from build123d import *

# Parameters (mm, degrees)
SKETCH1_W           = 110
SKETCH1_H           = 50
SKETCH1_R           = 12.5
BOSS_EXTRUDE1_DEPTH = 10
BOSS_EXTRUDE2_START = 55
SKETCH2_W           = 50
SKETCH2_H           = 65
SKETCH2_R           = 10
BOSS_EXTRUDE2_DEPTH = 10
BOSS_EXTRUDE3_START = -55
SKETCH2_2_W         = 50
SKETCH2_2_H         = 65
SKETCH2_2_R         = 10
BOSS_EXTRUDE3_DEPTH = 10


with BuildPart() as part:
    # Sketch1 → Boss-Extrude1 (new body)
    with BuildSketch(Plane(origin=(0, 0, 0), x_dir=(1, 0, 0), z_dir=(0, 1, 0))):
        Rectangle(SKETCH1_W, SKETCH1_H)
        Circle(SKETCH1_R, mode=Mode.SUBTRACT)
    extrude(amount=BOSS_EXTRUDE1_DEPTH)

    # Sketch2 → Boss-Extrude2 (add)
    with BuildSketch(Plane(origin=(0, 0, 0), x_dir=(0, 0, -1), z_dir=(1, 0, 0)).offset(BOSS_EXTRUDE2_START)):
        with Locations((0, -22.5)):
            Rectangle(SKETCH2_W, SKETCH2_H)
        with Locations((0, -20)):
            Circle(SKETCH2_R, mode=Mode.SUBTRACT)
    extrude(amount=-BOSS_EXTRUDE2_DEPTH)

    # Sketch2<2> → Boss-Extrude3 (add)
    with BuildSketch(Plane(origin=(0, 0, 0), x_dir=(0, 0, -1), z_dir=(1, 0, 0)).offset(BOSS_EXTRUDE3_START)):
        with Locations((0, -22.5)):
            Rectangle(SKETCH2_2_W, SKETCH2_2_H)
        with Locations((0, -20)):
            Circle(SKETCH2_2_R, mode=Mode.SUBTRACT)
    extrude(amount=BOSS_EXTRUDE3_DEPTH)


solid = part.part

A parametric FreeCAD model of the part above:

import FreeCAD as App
import Part
import Sketcher
Q = App.Units.Quantity

doc = App.newDocument("Part")
body = doc.addObject("PartDesign::Body", "Body")

# Sketch on XZ plane
sketch1 = doc.addObject("Sketcher::SketchObject", "Sketch")
body.addObject(sketch1)
sketch1.AttachmentSupport = (doc.XZ_Plane, [""])
sketch1.MapMode = "FlatFace"
sketch1.addGeometry([
    Part.LineSegment(App.Vector(-55, -25, 0), App.Vector(-55, 25, 0)),  # 0
    Part.LineSegment(App.Vector(-55, 25, 0), App.Vector(55, 25, 0)),  # 1
    Part.LineSegment(App.Vector(55, 25, 0), App.Vector(55, -25, 0)),  # 2
    Part.LineSegment(App.Vector(55, -25, 0), App.Vector(-55, -25, 0)),  # 3
    Part.Circle(App.Vector(0, 0, 0), App.Vector(0, 0, 1), 12),  # 4
], False)
sketch1.addConstraint([
    Sketcher.Constraint("Coincident", 0, 2, 1, 1),
    Sketcher.Constraint("Coincident", 1, 2, 2, 1),
    Sketcher.Constraint("Coincident", 2, 2, 3, 1),
    Sketcher.Constraint("Coincident", 3, 2, 0, 1),
    Sketcher.Constraint("Vertical", 0),
    Sketcher.Constraint("Horizontal", 1),
    Sketcher.Constraint("Vertical", 2),
    Sketcher.Constraint("Horizontal", 3),
    Sketcher.Constraint("Coincident", 4, 3, -1, 1),
    Sketcher.Constraint("Symmetric", 0, 2, 2, 2, -1, 1),
    Sketcher.Constraint("Diameter", 4, Q("25 mm")),
    Sketcher.Constraint("DistanceX", 1, 1, 1, 2, Q("110 mm")),
    Sketcher.Constraint("DistanceY", 0, 1, 0, 2, Q("50 mm")),
])
pad1 = doc.addObject("PartDesign::Pad", "Pad")
body.addObject(pad1)
pad1.Profile = sketch1
pad1.Length = 10
pad1.Reversed = True

# Sketch on YZ plane
sketch2 = doc.addObject("Sketcher::SketchObject", "Sketch001")
body.addObject(sketch2)
sketch2.AttachmentSupport = (doc.YZ_Plane, [""])
sketch2.MapMode = "FlatFace"
sketch2.AttachmentOffset = App.Placement(App.Vector(0, 0, 55), App.Rotation())
sketch2.addGeometry([
    Part.LineSegment(App.Vector(10, 25, 0), App.Vector(-55, 25, 0)),  # 0
    Part.LineSegment(App.Vector(-55, 25, 0), App.Vector(-55, -25, 0)),  # 1
    Part.LineSegment(App.Vector(-55, -25, 0), App.Vector(10, -25, 0)),  # 2
    Part.LineSegment(App.Vector(10, -25, 0), App.Vector(10, 25, 0)),  # 3
    Part.Circle(App.Vector(-20, 0, 0), App.Vector(0, 0, 1), 10),  # 4
], False)
sketch2.addConstraint([
    Sketcher.Constraint("Coincident", 0, 2, 1, 1),
    Sketcher.Constraint("Coincident", 1, 2, 2, 1),
    Sketcher.Constraint("Coincident", 2, 2, 3, 1),
    Sketcher.Constraint("Coincident", 3, 2, 0, 1),
    Sketcher.Constraint("Horizontal", 0),
    Sketcher.Constraint("Vertical", 1),
    Sketcher.Constraint("Horizontal", 2),
    Sketcher.Constraint("Vertical", 3),
    Sketcher.Constraint("PointOnObject", 4, 3, -1),
    Sketcher.Constraint("Diameter", 4, Q("20 mm")),
    Sketcher.Constraint("DistanceX", 0, 2, 0, 1, Q("65 mm")),
    Sketcher.Constraint("DistanceY", 1, 2, 1, 1, Q("50 mm")),
    Sketcher.Constraint("DistanceX", 4, 3, -1, 1, Q("20 mm")),
    Sketcher.Constraint("DistanceX", 0, 2, -1, 1, Q("55 mm")),
    Sketcher.Constraint("DistanceY", -1, 1, 0, 2, Q("25 mm")),
])
pad2 = doc.addObject("PartDesign::Pad", "Pad001")
body.addObject(pad2)
pad2.Profile = sketch2
pad2.Length = 10
pad2.Reversed = True

# Sketch on YZ plane
sketch3 = doc.addObject("Sketcher::SketchObject", "Sketch002")
body.addObject(sketch3)
sketch3.AttachmentSupport = (doc.YZ_Plane, [""])
sketch3.MapMode = "FlatFace"
sketch3.AttachmentOffset = App.Placement(App.Vector(0, 0, -55), App.Rotation())
sketch3.addGeometry([
    Part.LineSegment(App.Vector(10, 25, 0), App.Vector(-55, 25, 0)),  # 0
    Part.LineSegment(App.Vector(-55, 25, 0), App.Vector(-55, -25, 0)),  # 1
    Part.LineSegment(App.Vector(-55, -25, 0), App.Vector(10, -25, 0)),  # 2
    Part.LineSegment(App.Vector(10, -25, 0), App.Vector(10, 25, 0)),  # 3
    Part.Circle(App.Vector(-20, 0, 0), App.Vector(0, 0, 1), 10),  # 4
], False)
sketch3.addConstraint([
    Sketcher.Constraint("Coincident", 0, 2, 1, 1),
    Sketcher.Constraint("Coincident", 1, 2, 2, 1),
    Sketcher.Constraint("Coincident", 2, 2, 3, 1),
    Sketcher.Constraint("Coincident", 3, 2, 0, 1),
    Sketcher.Constraint("Horizontal", 0),
    Sketcher.Constraint("Vertical", 1),
    Sketcher.Constraint("Horizontal", 2),
    Sketcher.Constraint("Vertical", 3),
    Sketcher.Constraint("PointOnObject", 4, 3, -1),
    Sketcher.Constraint("Diameter", 4, Q("20 mm")),
    Sketcher.Constraint("DistanceX", 0, 2, 0, 1, Q("65 mm")),
    Sketcher.Constraint("DistanceY", 1, 2, 1, 1, Q("50 mm")),
    Sketcher.Constraint("DistanceX", 4, 3, -1, 1, Q("20 mm")),
    Sketcher.Constraint("DistanceX", 0, 2, -1, 1, Q("55 mm")),
    Sketcher.Constraint("DistanceY", -1, 1, 0, 2, Q("25 mm")),
])
pad3 = doc.addObject("PartDesign::Pad", "Pad002")
body.addObject(pad3)
pad3.Profile = sketch3
pad3.Length = 10

doc.recompute()
